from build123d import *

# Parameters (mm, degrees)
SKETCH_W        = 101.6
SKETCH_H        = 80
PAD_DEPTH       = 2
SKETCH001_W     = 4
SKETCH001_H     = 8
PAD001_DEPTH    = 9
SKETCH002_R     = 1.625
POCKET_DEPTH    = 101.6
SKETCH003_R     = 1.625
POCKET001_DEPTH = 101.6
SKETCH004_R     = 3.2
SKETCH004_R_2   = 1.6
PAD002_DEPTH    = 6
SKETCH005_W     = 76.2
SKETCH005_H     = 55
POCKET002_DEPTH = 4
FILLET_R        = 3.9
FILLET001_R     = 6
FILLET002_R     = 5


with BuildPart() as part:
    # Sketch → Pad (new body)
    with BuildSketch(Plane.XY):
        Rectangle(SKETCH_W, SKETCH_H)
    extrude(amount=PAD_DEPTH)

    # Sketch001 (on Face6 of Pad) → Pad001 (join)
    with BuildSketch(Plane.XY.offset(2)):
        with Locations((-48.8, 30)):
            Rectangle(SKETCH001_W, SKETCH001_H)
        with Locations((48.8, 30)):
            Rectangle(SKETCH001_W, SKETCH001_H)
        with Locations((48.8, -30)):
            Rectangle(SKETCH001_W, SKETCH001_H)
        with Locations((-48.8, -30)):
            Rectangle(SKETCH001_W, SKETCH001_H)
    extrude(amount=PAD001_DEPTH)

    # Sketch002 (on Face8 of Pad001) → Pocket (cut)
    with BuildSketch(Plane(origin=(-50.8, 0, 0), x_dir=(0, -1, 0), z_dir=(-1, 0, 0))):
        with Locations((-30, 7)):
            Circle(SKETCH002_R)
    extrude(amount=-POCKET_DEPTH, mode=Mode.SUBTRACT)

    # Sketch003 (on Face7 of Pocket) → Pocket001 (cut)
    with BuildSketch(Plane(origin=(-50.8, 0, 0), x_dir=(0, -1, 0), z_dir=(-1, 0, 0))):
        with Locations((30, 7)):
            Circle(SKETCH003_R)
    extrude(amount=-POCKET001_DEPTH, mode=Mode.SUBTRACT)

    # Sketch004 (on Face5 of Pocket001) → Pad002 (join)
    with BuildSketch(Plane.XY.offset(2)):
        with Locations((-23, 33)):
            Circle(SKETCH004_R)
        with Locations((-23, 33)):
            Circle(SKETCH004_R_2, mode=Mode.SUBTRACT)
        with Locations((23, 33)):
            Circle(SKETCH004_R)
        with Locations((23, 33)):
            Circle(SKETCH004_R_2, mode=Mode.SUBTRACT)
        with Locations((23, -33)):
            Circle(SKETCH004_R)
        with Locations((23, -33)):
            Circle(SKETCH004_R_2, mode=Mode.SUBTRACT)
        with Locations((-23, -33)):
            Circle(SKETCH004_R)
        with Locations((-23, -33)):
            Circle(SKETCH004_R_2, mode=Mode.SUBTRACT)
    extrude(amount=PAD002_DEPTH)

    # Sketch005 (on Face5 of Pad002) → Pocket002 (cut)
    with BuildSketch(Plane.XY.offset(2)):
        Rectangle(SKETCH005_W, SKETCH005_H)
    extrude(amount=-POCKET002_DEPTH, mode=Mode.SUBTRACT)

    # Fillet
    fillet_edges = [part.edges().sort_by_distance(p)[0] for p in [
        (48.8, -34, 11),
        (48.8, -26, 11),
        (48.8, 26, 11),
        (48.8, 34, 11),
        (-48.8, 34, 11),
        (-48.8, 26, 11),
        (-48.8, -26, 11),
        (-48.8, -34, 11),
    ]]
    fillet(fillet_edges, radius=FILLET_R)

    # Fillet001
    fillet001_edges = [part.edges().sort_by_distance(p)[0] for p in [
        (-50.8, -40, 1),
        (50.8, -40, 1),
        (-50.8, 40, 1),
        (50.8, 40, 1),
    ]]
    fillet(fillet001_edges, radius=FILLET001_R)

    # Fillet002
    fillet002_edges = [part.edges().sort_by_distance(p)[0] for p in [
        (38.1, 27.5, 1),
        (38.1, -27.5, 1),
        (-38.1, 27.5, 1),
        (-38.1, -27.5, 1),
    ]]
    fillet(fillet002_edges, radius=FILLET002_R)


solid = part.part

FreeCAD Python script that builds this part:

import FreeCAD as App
import Part
import Sketcher

V = App.Vector
Q = App.Units.Quantity


def edges_at(feature, points):
    """Names of the edges that pass closest to the given points."""
    edges = feature.Shape.Edges
    near = lambda p: min(range(len(edges)), key=lambda i: edges[i].distToShape(Part.Vertex(*p))[0])
    return sorted({f"Edge{near(p) + 1}" for p in points})

doc = App.newDocument("Part")
body = doc.addObject("PartDesign::Body", "Body")

sketch1 = body.newObject("Sketcher::SketchObject", "Sketch")
sketch1.AttachmentSupport = (doc.getObject("XY_Plane"), [""])
sketch1.MapMode = "FlatFace"
sketch1.addGeometry(Part.LineSegment(V(-50.8, 40, 0), V(-50.8, -40, 0)), False)
sketch1.addGeometry(Part.LineSegment(V(-50.8, -40, 0), V(50.8, -40, 0)), False)
sketch1.addGeometry(Part.LineSegment(V(50.8, -40, 0), V(50.8, 40, 0)), False)
sketch1.addGeometry(Part.LineSegment(V(50.8, 40, 0), V(-50.8, 40, 0)), False)
sketch1.addConstraint(Sketcher.Constraint("Coincident", 0, 2, 1, 1))
sketch1.addConstraint(Sketcher.Constraint("Coincident", 1, 2, 2, 1))
sketch1.addConstraint(Sketcher.Constraint("Coincident", 2, 2, 3, 1))
sketch1.addConstraint(Sketcher.Constraint("Coincident", 3, 2, 0, 1))
sketch1.addConstraint(Sketcher.Constraint("Vertical", 0))
sketch1.addConstraint(Sketcher.Constraint("Horizontal", 1))
sketch1.addConstraint(Sketcher.Constraint("Vertical", 2))
sketch1.addConstraint(Sketcher.Constraint("Horizontal", 3))
sketch1.addConstraint(Sketcher.Constraint("Symmetric", 0, 2, 2, 2, -1, 1))
sketch1.addConstraint(Sketcher.Constraint("DistanceY", 0, 2, 0, 1, Q("80 mm")))
sketch1.addConstraint(Sketcher.Constraint("DistanceX", 1, 1, 1, 2, Q("101.6 mm")))
pad1 = body.newObject("PartDesign::Pad", "Pad")
pad1.Profile = sketch1
pad1.Length = 2

sketch2 = body.newObject("Sketcher::SketchObject", "Sketch001")
sketch2.AttachmentSupport = (doc.getObject("XY_Plane"), [""])
sketch2.MapMode = "FlatFace"
sketch2.AttachmentOffset = App.Placement(V(0, 0, 2), App.Rotation())
sketch2.addGeometry(Part.LineSegment(V(-50.8, 34, 0), V(-50.8, 26, 0)), False)
sketch2.addGeometry(Part.LineSegment(V(-50.8, 26, 0), V(-46.8, 26, 0)), False)
sketch2.addGeometry(Part.LineSegment(V(-46.8, 26, 0), V(-46.8, 34, 0)), False)
sketch2.addGeometry(Part.LineSegment(V(-46.8, 34, 0), V(-50.8, 34, 0)), False)
sketch2.addGeometry(Part.LineSegment(V(46.8, 34, 0), V(46.8, 26, 0)), False)
sketch2.addGeometry(Part.LineSegment(V(46.8, 26, 0), V(50.8, 26, 0)), False)
sketch2.addGeometry(Part.LineSegment(V(50.8, 26, 0), V(50.8, 34, 0)), False)
sketch2.addGeometry(Part.LineSegment(V(50.8, 34, 0), V(46.8, 34, 0)), False)
sketch2.addGeometry(Part.LineSegment(V(46.8, -26, 0), V(46.8, -34, 0)), False)
sketch2.addGeometry(Part.LineSegment(V(46.8, -34, 0), V(50.8, -34, 0)), False)
sketch2.addGeometry(Part.LineSegment(V(50.8, -34, 0), V(50.8, -26, 0)), False)
sketch2.addGeometry(Part.LineSegment(V(50.8, -26, 0), V(46.8, -26, 0)), False)
sketch2.addGeometry(Part.LineSegment(V(-50.8, -26, 0), V(-50.8, -34, 0)), False)
sketch2.addGeometry(Part.LineSegment(V(-50.8, -34, 0), V(-46.8, -34, 0)), False)
sketch2.addGeometry(Part.LineSegment(V(-46.8, -34, 0), V(-46.8, -26, 0)), False)
sketch2.addGeometry(Part.LineSegment(V(-46.8, -26, 0), V(-50.8, -26, 0)), False)
sketch2.addConstraint(Sketcher.Constraint("Coincident", 0, 2, 1, 1))
sketch2.addConstraint(Sketcher.Constraint("Coincident", 1, 2, 2, 1))
sketch2.addConstraint(Sketcher.Constraint("Coincident", 2, 2, 3, 1))
sketch2.addConstraint(Sketcher.Constraint("Coincident", 3, 2, 0, 1))
sketch2.addConstraint(Sketcher.Constraint("Coincident", 4, 2, 5, 1))
sketch2.addConstraint(Sketcher.Constraint("Coincident", 5, 2, 6, 1))
sketch2.addConstraint(Sketcher.Constraint("Coincident", 6, 2, 7, 1))
sketch2.addConstraint(Sketcher.Constraint("Coincident", 7, 2, 4, 1))
sketch2.addConstraint(Sketcher.Constraint("Coincident", 8, 2, 9, 1))
sketch2.addConstraint(Sketcher.Constraint("Coincident", 9, 2, 10, 1))
sketch2.addConstraint(Sketcher.Constraint("Coincident", 10, 2, 11, 1))
sketch2.addConstraint(Sketcher.Constraint("Coincident", 11, 2, 8, 1))
sketch2.addConstraint(Sketcher.Constraint("Coincident", 12, 2, 13, 1))
sketch2.addConstraint(Sketcher.Constraint("Coincident", 13, 2, 14, 1))
sketch2.addConstraint(Sketcher.Constraint("Coincident", 14, 2, 15, 1))
sketch2.addConstraint(Sketcher.Constraint("Coincident", 15, 2, 12, 1))
sketch2.addConstraint(Sketcher.Constraint("Vertical", 0))
sketch2.addConstraint(Sketcher.Constraint("Horizontal", 1))
sketch2.addConstraint(Sketcher.Constraint("Vertical", 2))
sketch2.addConstraint(Sketcher.Constraint("Horizontal", 3))
sketch2.addConstraint(Sketcher.Constraint("Vertical", 4))
sketch2.addConstraint(Sketcher.Constraint("Horizontal", 5))
sketch2.addConstraint(Sketcher.Constraint("Vertical", 6))
sketch2.addConstraint(Sketcher.Constraint("Horizontal", 7))
sketch2.addConstraint(Sketcher.Constraint("Vertical", 8))
sketch2.addConstraint(Sketcher.Constraint("Horizontal", 9))
sketch2.addConstraint(Sketcher.Constraint("Vertical", 10))
sketch2.addConstraint(Sketcher.Constraint("Horizontal", 11))
sketch2.addConstraint(Sketcher.Constraint("Vertical", 12))
sketch2.addConstraint(Sketcher.Constraint("Horizontal", 13))
sketch2.addConstraint(Sketcher.Constraint("Vertical", 14))
sketch2.addConstraint(Sketcher.Constraint("Horizontal", 15))
sketch2.addConstraint(Sketcher.Constraint("Symmetric", 2, 2, 8, 2, -1, 1))
sketch2.addConstraint(Sketcher.Constraint("Symmetric", 0, 2, 10, 2, -1, 1))
sketch2.addConstraint(Sketcher.Constraint("Symmetric", 6, 2, 12, 2, -1, 1))
sketch2.addConstraint(Sketcher.Constraint("Symmetric", 4, 2, 14, 2, -1, 1))
sketch2.addConstraint(Sketcher.Constraint("Symmetric", 1, 2, 4, 2, -2))
sketch2.addConstraint(Sketcher.Constraint("Symmetric", 3, 2, 6, 2, -2))
sketch2.addConstraint(Sketcher.Constraint("DistanceX", 1, 1, 1, 2, Q("4 mm")))
sketch2.addConstraint(Sketcher.Constraint("DistanceY", 0, 2, 0, 1, Q("8 mm")))
sketch2.addConstraint(Sketcher.Constraint("DistanceY", -1, 1, 0, 2, Q("26 mm")))
sketch2.addConstraint(Sketcher.Constraint("DistanceX", 0, 2, -1, 1, Q("50.8 mm")))
pad2 = body.newObject("PartDesign::Pad", "Pad001")
pad2.Profile = sketch2
pad2.Length = 9

sketch3 = body.newObject("Sketcher::SketchObject", "Sketch002")
sketch3.AttachmentSupport = (doc.getObject("YZ_Plane"), [""])
sketch3.MapMode = "FlatFace"
sketch3.AttachmentOffset = App.Placement(V(0, 0, -50.8), App.Rotation())
sketch3.addGeometry(Part.Circle(V(30, 7, 0), V(0, 0, 1), 1.625), False)
sketch3.addConstraint(Sketcher.Constraint("Diameter", 0, Q("3.25 mm")))
sketch3.addConstraint(Sketcher.Constraint("DistanceX", -1, 1, 0, 3, Q("30 mm")))
sketch3.addConstraint(Sketcher.Constraint("DistanceY", -1, 1, 0, 3, Q("7 mm")))
pocket1 = body.newObject("PartDesign::Pocket", "Pocket")
pocket1.Profile = sketch3
pocket1.Length = 101.6
pocket1.Reversed = True

sketch4 = body.newObject("Sketcher::SketchObject", "Sketch003")
sketch4.AttachmentSupport = (doc.getObject("YZ_Plane"), [""])
sketch4.MapMode = "FlatFace"
sketch4.AttachmentOffset = App.Placement(V(0, 0, -50.8), App.Rotation())
sketch4.addGeometry(Part.Circle(V(-30, 7, 0), V(0, 0, 1), 1.625), False)
sketch4.addConstraint(Sketcher.Constraint("Diameter", 0, Q("3.25 mm")))
sketch4.addConstraint(Sketcher.Constraint("DistanceX", 0, 3, -1, 1, Q("30 mm")))
sketch4.addConstraint(Sketcher.Constraint("DistanceY", -1, 1, 0, 3, Q("7 mm")))
pocket2 = body.newObject("PartDesign::Pocket", "Pocket001")
pocket2.Profile = sketch4
pocket2.Length = 101.6
pocket2.Reversed = True

sketch5 = body.newObject("Sketcher::SketchObject", "Sketch004")
sketch5.AttachmentSupport = (doc.getObject("XY_Plane"), [""])
sketch5.MapMode = "FlatFace"
sketch5.AttachmentOffset = App.Placement(V(0, 0, 2), App.Rotation())
sketch5.addGeometry(Part.Circle(V(-23, 33, 0), V(0, 0, 1), 3.2), False)
sketch5.addGeometry(Part.Circle(V(-23, 33, 0), V(0, 0, 1), 1.6), False)
sketch5.addGeometry(Part.Circle(V(23, 33, 0), V(0, 0, 1), 3.2), False)
sketch5.addGeometry(Part.Circle(V(23, 33, 0), V(0, 0, 1), 1.6), False)
sketch5.addGeometry(Part.Circle(V(23, -33, 0), V(0, 0, 1), 3.2), False)
sketch5.addGeometry(Part.Circle(V(23, -33, 0), V(0, 0, 1), 1.6), False)
sketch5.addGeometry(Part.Circle(V(-23, -33, 0), V(0, 0, 1), 3.2), False)
sketch5.addGeometry(Part.Circle(V(-23, -33, 0), V(0, 0, 1), 1.6), False)
sketch5.addConstraint(Sketcher.Constraint("Coincident", 1, 3, 0, 3))
sketch5.addConstraint(Sketcher.Constraint("Coincident", 3, 3, 2, 3))
sketch5.addConstraint(Sketcher.Constraint("Coincident", 5, 3, 4, 3))
sketch5.addConstraint(Sketcher.Constraint("Coincident", 7, 3, 6, 3))
sketch5.addConstraint(Sketcher.Constraint("Equal", 0, 2))
sketch5.addConstraint(Sketcher.Constraint("Equal", 1, 3))
sketch5.addConstraint(Sketcher.Constraint("Equal", 2, 4))
sketch5.addConstraint(Sketcher.Constraint("Equal", 3, 5))
sketch5.addConstraint(Sketcher.Constraint("Equal", 4, 6))
sketch5.addConstraint(Sketcher.Constraint("Equal", 5, 7))
sketch5.addConstraint(Sketcher.Constraint("Symmetric", 0, 3, 4, 3, -1, 1))
sketch5.addConstraint(Sketcher.Constraint("Symmetric", 2, 3, 6, 3, -1, 1))
sketch5.addConstraint(Sketcher.Constraint("Symmetric", 0, 3, 2, 3, -2))
sketch5.addConstraint(Sketcher.Constraint("Diameter", 0, Q("6.4 mm")))
sketch5.addConstraint(Sketcher.Constraint("Diameter", 1, Q("3.2 mm")))
sketch5.addConstraint(Sketcher.Constraint("DistanceX", 0, 3, -1, 1, Q("23 mm")))
sketch5.addConstraint(Sketcher.Constraint("DistanceY", -1, 1, 0, 3, Q("33 mm")))
pad3 = body.newObject("PartDesign::Pad", "Pad002")
pad3.Profile = sketch5
pad3.Length = 6

sketch6 = body.newObject("Sketcher::SketchObject", "Sketch005")
sketch6.AttachmentSupport = (doc.getObject("XY_Plane"), [""])
sketch6.MapMode = "FlatFace"
sketch6.AttachmentOffset = App.Placement(V(0, 0, 2), App.Rotation())
sketch6.addGeometry(Part.LineSegment(V(-38.1, 27.5, 0), V(-38.1, -27.5, 0)), False)
sketch6.addGeometry(Part.LineSegment(V(-38.1, -27.5, 0), V(38.1, -27.5, 0)), False)
sketch6.addGeometry(Part.LineSegment(V(38.1, -27.5, 0), V(38.1, 27.5, 0)), False)
sketch6.addGeometry(Part.LineSegment(V(38.1, 27.5, 0), V(-38.1, 27.5, 0)), False)
sketch6.addConstraint(Sketcher.Constraint("Coincident", 0, 2, 1, 1))
sketch6.addConstraint(Sketcher.Constraint("Coincident", 1, 2, 2, 1))
sketch6.addConstraint(Sketcher.Constraint("Coincident", 2, 2, 3, 1))
sketch6.addConstraint(Sketcher.Constraint("Coincident", 3, 2, 0, 1))
sketch6.addConstraint(Sketcher.Constraint("Vertical", 0))
sketch6.addConstraint(Sketcher.Constraint("Horizontal", 1))
sketch6.addConstraint(Sketcher.Constraint("Vertical", 2))
sketch6.addConstraint(Sketcher.Constraint("Horizontal", 3))
sketch6.addConstraint(Sketcher.Constraint("Symmetric", 0, 2, 2, 2, -1, 1))
sketch6.addConstraint(Sketcher.Constraint("DistanceY", 0, 2, 0, 1, Q("55 mm")))
sketch6.addConstraint(Sketcher.Constraint("DistanceX", 1, 1, 1, 2, Q("76.2 mm")))
pocket3 = body.newObject("PartDesign::Pocket", "Pocket002")
pocket3.Profile = sketch6
pocket3.Length = 4
doc.recompute()

fillet = body.newObject("PartDesign::Fillet", "Fillet")
fillet.Base = (pocket3, edges_at(pocket3, [
    (48.8, -34, 11),
    (48.8, -26, 11),
    (48.8, 26, 11),
    (48.8, 34, 11),
    (-48.8, 34, 11),
    (-48.8, 26, 11),
    (-48.8, -26, 11),
    (-48.8, -34, 11),
]))
fillet.Radius = 3.9
doc.recompute()

fillet2 = body.newObject("PartDesign::Fillet", "Fillet001")
fillet2.Base = (fillet, edges_at(fillet, [
    (-50.8, -40, 1),
    (50.8, -40, 1),
    (-50.8, 40, 1),
    (50.8, 40, 1),
]))
fillet2.Radius = 6
doc.recompute()

fillet3 = body.newObject("PartDesign::Fillet", "Fillet002")
fillet3.Base = (fillet2, edges_at(fillet2, [
    (38.1, 27.5, 1),
    (38.1, -27.5, 1),
    (-38.1, 27.5, 1),
    (-38.1, -27.5, 1),
]))
fillet3.Radius = 5

doc.recompute()
